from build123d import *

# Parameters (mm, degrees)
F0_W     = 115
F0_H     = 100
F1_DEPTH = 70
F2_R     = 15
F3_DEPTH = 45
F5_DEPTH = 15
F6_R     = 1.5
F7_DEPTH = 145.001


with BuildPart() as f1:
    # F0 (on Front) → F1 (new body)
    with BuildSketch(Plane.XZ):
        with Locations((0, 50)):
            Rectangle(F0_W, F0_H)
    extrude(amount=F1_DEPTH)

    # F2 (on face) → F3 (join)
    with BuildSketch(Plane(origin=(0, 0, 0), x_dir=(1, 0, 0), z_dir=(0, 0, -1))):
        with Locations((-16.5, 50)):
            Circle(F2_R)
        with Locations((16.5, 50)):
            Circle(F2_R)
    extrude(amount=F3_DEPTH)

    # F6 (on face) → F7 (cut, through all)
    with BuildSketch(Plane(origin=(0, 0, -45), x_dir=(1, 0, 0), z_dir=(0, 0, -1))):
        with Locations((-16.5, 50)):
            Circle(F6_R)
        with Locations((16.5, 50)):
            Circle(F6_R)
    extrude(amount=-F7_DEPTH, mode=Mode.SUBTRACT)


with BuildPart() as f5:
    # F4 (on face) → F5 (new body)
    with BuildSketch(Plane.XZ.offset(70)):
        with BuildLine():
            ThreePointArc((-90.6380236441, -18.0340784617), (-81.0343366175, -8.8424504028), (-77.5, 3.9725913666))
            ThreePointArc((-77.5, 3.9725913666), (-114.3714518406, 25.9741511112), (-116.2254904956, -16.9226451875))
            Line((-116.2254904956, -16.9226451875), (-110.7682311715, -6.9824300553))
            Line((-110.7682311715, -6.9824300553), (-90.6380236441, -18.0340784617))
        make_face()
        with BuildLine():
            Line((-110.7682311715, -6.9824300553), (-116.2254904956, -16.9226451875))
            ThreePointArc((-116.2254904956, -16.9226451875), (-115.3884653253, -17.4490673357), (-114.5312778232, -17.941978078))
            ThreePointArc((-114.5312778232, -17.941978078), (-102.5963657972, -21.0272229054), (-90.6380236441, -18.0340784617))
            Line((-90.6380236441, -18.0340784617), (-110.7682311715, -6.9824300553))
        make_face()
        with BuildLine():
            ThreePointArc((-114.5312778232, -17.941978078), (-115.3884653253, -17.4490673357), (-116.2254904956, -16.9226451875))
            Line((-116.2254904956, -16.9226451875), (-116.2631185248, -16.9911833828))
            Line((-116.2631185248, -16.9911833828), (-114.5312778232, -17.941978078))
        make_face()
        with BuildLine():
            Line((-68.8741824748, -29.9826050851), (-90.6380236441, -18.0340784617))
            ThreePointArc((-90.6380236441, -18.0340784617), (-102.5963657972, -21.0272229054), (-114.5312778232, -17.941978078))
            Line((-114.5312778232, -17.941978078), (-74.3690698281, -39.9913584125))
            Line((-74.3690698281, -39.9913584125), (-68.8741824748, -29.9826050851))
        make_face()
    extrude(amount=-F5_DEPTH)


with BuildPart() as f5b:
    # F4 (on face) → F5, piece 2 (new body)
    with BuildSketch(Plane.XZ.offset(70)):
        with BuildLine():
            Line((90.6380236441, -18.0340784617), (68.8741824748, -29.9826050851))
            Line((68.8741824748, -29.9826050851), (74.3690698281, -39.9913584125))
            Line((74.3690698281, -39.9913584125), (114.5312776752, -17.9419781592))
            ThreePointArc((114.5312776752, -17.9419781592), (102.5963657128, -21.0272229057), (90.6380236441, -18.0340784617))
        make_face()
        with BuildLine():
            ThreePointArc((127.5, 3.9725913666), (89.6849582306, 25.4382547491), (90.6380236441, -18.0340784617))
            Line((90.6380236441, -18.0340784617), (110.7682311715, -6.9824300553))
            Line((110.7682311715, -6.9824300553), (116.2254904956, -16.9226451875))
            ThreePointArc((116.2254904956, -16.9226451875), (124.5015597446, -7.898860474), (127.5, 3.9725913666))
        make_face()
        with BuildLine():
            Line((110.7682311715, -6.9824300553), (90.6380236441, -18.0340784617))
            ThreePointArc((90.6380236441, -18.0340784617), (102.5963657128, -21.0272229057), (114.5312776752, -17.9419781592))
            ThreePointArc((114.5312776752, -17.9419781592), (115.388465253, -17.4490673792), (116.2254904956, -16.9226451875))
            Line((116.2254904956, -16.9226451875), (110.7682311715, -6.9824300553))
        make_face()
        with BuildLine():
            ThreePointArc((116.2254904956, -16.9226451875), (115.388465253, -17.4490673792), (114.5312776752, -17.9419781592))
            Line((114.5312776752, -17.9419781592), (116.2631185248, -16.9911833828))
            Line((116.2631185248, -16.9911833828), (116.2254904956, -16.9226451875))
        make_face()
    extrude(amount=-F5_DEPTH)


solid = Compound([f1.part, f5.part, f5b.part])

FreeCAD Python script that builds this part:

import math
import FreeCAD as App
import Part
import Sketcher

V = App.Vector
Q = App.Units.Quantity

doc = App.newDocument("Part")
body = doc.addObject("PartDesign::Body", "Body")

# Sketch on XZ plane
sketch1 = doc.addObject("Sketcher::SketchObject", "Sketch")
body.addObject(sketch1)
sketch1.AttachmentSupport = (doc.XZ_Plane, [""])
sketch1.MapMode = "FlatFace"
sketch1.addGeometry([
    Part.LineSegment(V(-58, 100, 0), V(-58, 0, 0)),
    Part.LineSegment(V(-58, 0, 0), V(58, 0, 0)),
    Part.LineSegment(V(58, 0, 0), V(58, 100, 0)),
    Part.LineSegment(V(58, 100, 0), V(-58, 100, 0)),
], False)
sketch1.addConstraint([
    Sketcher.Constraint("Coincident", 0, 2, 1, 1),
    Sketcher.Constraint("Coincident", 1, 2, 2, 1),
    Sketcher.Constraint("Coincident", 2, 2, 3, 1),
    Sketcher.Constraint("Coincident", 3, 2, 0, 1),
    Sketcher.Constraint("Vertical", 0),
    Sketcher.Constraint("Horizontal", 1),
    Sketcher.Constraint("Vertical", 2),
    Sketcher.Constraint("Horizontal", 3),
    Sketcher.Constraint("Symmetric", 0, 2, 1, 2, -1, 1),
    Sketcher.Constraint("DistanceX", 1, 1, 1, 2, Q("115 mm")),
    Sketcher.Constraint("DistanceY", 0, 2, 0, 1, Q("100 mm")),
])
pad1 = doc.addObject("PartDesign::Pad", "Pad")
body.addObject(pad1)
pad1.Profile = sketch1
pad1.Length = 70

# Sketch on XY plane
sketch2 = doc.addObject("Sketcher::SketchObject", "Sketch001")
body.addObject(sketch2)
sketch2.AttachmentSupport = (doc.XY_Plane, [""])
sketch2.MapMode = "FlatFace"
sketch2.addGeometry([
    Part.Circle(V(-16, -50, 0), V(0, 0, 1), 15),
    Part.Circle(V(16, -50, 0), V(0, 0, 1), 15),
], False)
sketch2.addConstraint([
    Sketcher.Constraint("Equal", 0, 1),
    Sketcher.Constraint("Symmetric", 0, 3, 1, 3, -2),
    Sketcher.Constraint("Diameter", 0, Q("30 mm")),
    Sketcher.Constraint("DistanceY", 0, 3, -1, 1, Q("50 mm")),
    Sketcher.Constraint("DistanceX", 0, 3, 1, 3, Q("33 mm")),
])
pad2 = doc.addObject("PartDesign::Pad", "Pad001")
body.addObject(pad2)
pad2.Profile = sketch2
pad2.Length = 45
pad2.Reversed = True

# Sketch on XY plane
sketch3 = doc.addObject("Sketcher::SketchObject", "Sketch002")
body.addObject(sketch3)
sketch3.AttachmentSupport = (doc.XY_Plane, [""])
sketch3.MapMode = "FlatFace"
sketch3.AttachmentOffset = App.Placement(V(0, 0, -45), App.Rotation())
sketch3.addGeometry([
    Part.Circle(V(-16.5, -50, 0), V(0, 0, 1), 1.5),
    Part.Circle(V(16.5, -50, 0), V(0, 0, 1), 1.5),
], False)
sketch3.addConstraint([
    Sketcher.Constraint("Equal", 0, 1),
    Sketcher.Constraint("Symmetric", 0, 3, 1, 3, -2),
    Sketcher.Constraint("Diameter", 0, Q("3 mm")),
    Sketcher.Constraint("DistanceY", 0, 3, -1, 1, Q("50 mm")),
    Sketcher.Constraint("DistanceX", 0, 3, 1, 3, Q("33 mm")),
])
pocket1 = doc.addObject("PartDesign::Pocket", "Pocket")
body.addObject(pocket1)
pocket1.Profile = sketch3
pocket1.Type = "ThroughAll"
pocket1.Reversed = True
body2 = doc.addObject("PartDesign::Body", "Body001")

# Sketch on XZ plane
sketch4 = doc.addObject("Sketcher::SketchObject", "Sketch003")
body2.addObject(sketch4)
sketch4.AttachmentSupport = (doc.getObject("XZ_Plane001"), [""])
sketch4.MapMode = "FlatFace"
sketch4.AttachmentOffset = App.Placement(V(0, 0, 70), App.Rotation())
sketch4.addGeometry([
    Part.ArcOfCircle(Part.Circle(V(-102.5, 3.97, 0), V(0, 0, 1), 25), math.radians(-62), math.radians(0)),  # 0
    Part.ArcOfCircle(Part.Circle(V(-102.5, 3.97, 0), V(0, 0, 1), 25), math.radians(0), math.radians(237)),  # 1
    Part.LineSegment(V(-116.23, -16.92, 0), V(-116.26, -16.99, 0)),  # 2
    Part.LineSegment(V(-116.26, -16.99, 0), V(-114.53, -17.94, 0)),  # 3
    Part.LineSegment(V(-114.53, -17.94, 0), V(-74.37, -39.99, 0)),  # 4
    Part.LineSegment(V(-74.37, -39.99, 0), V(-68.87, -29.98, 0)),  # 5
    Part.LineSegment(V(-68.87, -29.98, 0), V(-90.64, -18.03, 0)),  # 6
], False)
sketch4.addConstraint([
    Sketcher.Constraint("Tangent", 0, 2, 1, 1),
    Sketcher.Constraint("Coincident", 1, 2, 2, 1),
    Sketcher.Constraint("Coincident", 2, 2, 3, 1),
    Sketcher.Constraint("Coincident", 3, 2, 4, 1),
    Sketcher.Constraint("Coincident", 4, 2, 5, 1),
    Sketcher.Constraint("Coincident", 5, 2, 6, 1),
    Sketcher.Constraint("Coincident", 6, 2, 0, 1),
    Sketcher.Constraint("Equal", 0, 1),
    Sketcher.Constraint("Perpendicular", 2, 3),
    Sketcher.Constraint("Parallel", 3, 4),
    Sketcher.Constraint("Perpendicular", 4, 5),
    Sketcher.Constraint("Perpendicular", 5, 6),
    Sketcher.Constraint("Horizontal", 1, 3, 0, 2),
    Sketcher.Constraint("Radius", 0, Q("25 mm")),
    Sketcher.Constraint("DistanceX", 0, 3, -1, 1, Q("102.5 mm")),
    Sketcher.Constraint("DistanceY", 6, 2, 3, 2, Q("0.0921 mm")),
    Sketcher.Constraint("Distance", 4, Q("45.816789 mm")),
    Sketcher.Constraint("Distance", 5, Q("11.417921 mm")),
    Sketcher.Constraint("Distance", 6, Q("24.82805 mm")),
    Sketcher.Constraint("DistanceY", -1, 1, 0, 3, Q("3.972591 mm")),
    Sketcher.Constraint("DistanceX", 1, 2, -1, 1, Q("116.22549 mm")),
    Sketcher.Constraint("DistanceX", 2, 2, -1, 1, Q("116.263119 mm")),
])
pad3 = doc.addObject("PartDesign::Pad", "Pad002")
body2.addObject(pad3)
pad3.Profile = sketch4
pad3.Length = 15
pad3.Reversed = True
body3 = doc.addObject("PartDesign::Body", "Body002")

# Sketch on XZ plane
sketch5 = doc.addObject("Sketcher::SketchObject", "Sketch004")
body3.addObject(sketch5)
sketch5.AttachmentSupport = (doc.getObject("XZ_Plane002"), [""])
sketch5.MapMode = "FlatFace"
sketch5.AttachmentOffset = App.Placement(V(0, 0, 70), App.Rotation())
sketch5.addGeometry([
    Part.LineSegment(V(90.64, -18.03, 0), V(68.87, -29.98, 0)),  # 0
    Part.LineSegment(V(68.87, -29.98, 0), V(74.37, -39.99, 0)),  # 1
    Part.LineSegment(V(74.37, -39.99, 0), V(114.53, -17.94, 0)),  # 2
    Part.LineSegment(V(114.53, -17.94, 0), V(116.26, -16.99, 0)),  # 3
    Part.LineSegment(V(116.26, -16.99, 0), V(116.23, -16.92, 0)),  # 4
    Part.ArcOfCircle(Part.Circle(V(102.5, 3.97, 0), V(0, 0, 1), 25), math.radians(-57), math.radians(242)),  # 5
], False)
sketch5.addConstraint([
    Sketcher.Constraint("Coincident", 0, 2, 1, 1),
    Sketcher.Constraint("Coincident", 1, 2, 2, 1),
    Sketcher.Constraint("Coincident", 2, 2, 3, 1),
    Sketcher.Constraint("Coincident", 3, 2, 4, 1),
    Sketcher.Constraint("Coincident", 4, 2, 5, 1),
    Sketcher.Constraint("Coincident", 5, 2, 0, 1),
    Sketcher.Constraint("Perpendicular", 0, 1),
    Sketcher.Constraint("Perpendicular", 1, 2),
    Sketcher.Constraint("Parallel", 2, 3),
    Sketcher.Constraint("Perpendicular", 3, 4),
    Sketcher.Constraint("Radius", 5, Q("25 mm")),
    Sketcher.Constraint("DistanceX", -1, 1, 5, 3, Q("102.5 mm")),
    Sketcher.Constraint("DistanceY", 5, 2, 2, 2, Q("0.0921 mm")),
    Sketcher.Constraint("Distance", 0, Q("24.82805 mm")),
    Sketcher.Constraint("Distance", 1, Q("11.417921 mm")),
    Sketcher.Constraint("Distance", 2, Q("45.816789 mm")),
    Sketcher.Constraint("DistanceY", -1, 1, 5, 3, Q("3.972591 mm")),
    Sketcher.Constraint("DistanceX", -1, 1, 1, 2, Q("74.36907 mm")),
    Sketcher.Constraint("DistanceX", -1, 1, 3, 2, Q("116.263119 mm")),
])
pad4 = doc.addObject("PartDesign::Pad", "Pad003")
body3.addObject(pad4)
pad4.Profile = sketch5
pad4.Length = 15
pad4.Reversed = True

doc.recompute()
